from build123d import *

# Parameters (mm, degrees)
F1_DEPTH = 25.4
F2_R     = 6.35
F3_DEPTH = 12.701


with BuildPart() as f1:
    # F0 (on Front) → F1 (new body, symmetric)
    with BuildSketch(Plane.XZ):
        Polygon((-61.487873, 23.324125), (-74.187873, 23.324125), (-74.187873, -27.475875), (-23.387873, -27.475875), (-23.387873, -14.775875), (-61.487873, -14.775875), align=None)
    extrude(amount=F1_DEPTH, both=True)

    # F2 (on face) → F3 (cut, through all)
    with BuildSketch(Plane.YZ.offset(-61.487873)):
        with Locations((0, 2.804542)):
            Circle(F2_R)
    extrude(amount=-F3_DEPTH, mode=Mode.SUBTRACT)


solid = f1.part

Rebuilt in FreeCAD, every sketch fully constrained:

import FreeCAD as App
import Part
import Sketcher

V = App.Vector
Q = App.Units.Quantity


def add_polygon(sketch, points):
    """Adds a closed chain of lines whose ends are joined by coincident constraints."""
    first, n = sketch.GeometryCount, len(points)
    for a, b in zip(points, points[1:] + points[:1]):
        sketch.addGeometry(Part.LineSegment(App.Vector(*a, 0), App.Vector(*b, 0)), False)
    for i in range(n):
        sketch.addConstraint(Sketcher.Constraint("Coincident", first + i, 2, first + (i + 1) % n, 1))

doc = App.newDocument("Part")
body = doc.addObject("PartDesign::Body", "Body")

# Sketch on XZ plane
sketch1 = body.newObject("Sketcher::SketchObject", "Sketch")
sketch1.AttachmentSupport = (doc.getObject("XZ_Plane"), [""])
sketch1.MapMode = "FlatFace"
add_polygon(sketch1, [(-61, 23), (-74, 23), (-74, -27), (-23, -27), (-23, -15), (-61, -15)])  # lines 0-5
sketch1.addConstraint(Sketcher.Constraint("Horizontal", 0))
sketch1.addConstraint(Sketcher.Constraint("Vertical", 1))
sketch1.addConstraint(Sketcher.Constraint("Horizontal", 2))
sketch1.addConstraint(Sketcher.Constraint("Vertical", 3))
sketch1.addConstraint(Sketcher.Constraint("Horizontal", 4))
sketch1.addConstraint(Sketcher.Constraint("Vertical", 5))
sketch1.addConstraint(Sketcher.Constraint("Equal", 2, 1))
sketch1.addConstraint(Sketcher.Constraint("Equal", 0, 3))
sketch1.addConstraint(Sketcher.Constraint("DistanceX", 2, 1, 2, 2, Q("2 in")))
sketch1.addConstraint(Sketcher.Constraint("DistanceX", 0, 2, 0, 1, Q("0.5 in")))
sketch1.addConstraint(Sketcher.Constraint("DistanceX", 0, 2, -1, 1, 74.187873))
sketch1.addConstraint(Sketcher.Constraint("DistanceY", -1, 1, 0, 2, 23.324125))
pad1 = body.newObject("PartDesign::Pad", "Pad")
pad1.Profile = sketch1
pad1.Length = Q("2 in")
pad1.Midplane = True

# Sketch on YZ plane
sketch2 = body.newObject("Sketcher::SketchObject", "Sketch001")
sketch2.AttachmentSupport = (doc.getObject("YZ_Plane"), [""])
sketch2.MapMode = "FlatFace"
sketch2.AttachmentOffset = App.Placement(V(0, 0, -61.487873), App.Rotation())
sketch2.addGeometry(Part.Circle(V(0, 3, 0), V(0, 0, 1), 6), False)
sketch2.addConstraint(Sketcher.Constraint("PointOnObject", 0, 3, -2))
sketch2.addConstraint(Sketcher.Constraint("Diameter", 0, Q("0.5 in")))
sketch2.addConstraint(Sketcher.Constraint("DistanceY", -1, 1, 0, 3, 2.804542))
pocket1 = body.newObject("PartDesign::Pocket", "Pocket")
pocket1.Profile = sketch2
pocket1.Type = "ThroughAll"

doc.recompute()
